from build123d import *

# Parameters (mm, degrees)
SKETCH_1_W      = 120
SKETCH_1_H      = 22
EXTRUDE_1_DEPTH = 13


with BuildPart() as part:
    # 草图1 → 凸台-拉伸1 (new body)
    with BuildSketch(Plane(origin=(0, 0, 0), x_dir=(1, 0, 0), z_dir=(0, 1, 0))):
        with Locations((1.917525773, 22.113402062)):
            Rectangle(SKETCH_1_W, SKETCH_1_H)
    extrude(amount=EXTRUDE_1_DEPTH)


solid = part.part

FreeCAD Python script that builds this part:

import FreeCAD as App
import Part
import Sketcher

V = App.Vector
Q = App.Units.Quantity

doc = App.newDocument("Part")
body = doc.addObject("PartDesign::Body", "Body")

sketch1 = body.newObject("Sketcher::SketchObject", "Sketch")
sketch1.AttachmentSupport = (doc.getObject("XZ_Plane"), [""])
sketch1.MapMode = "FlatFace"
sketch1.addGeometry([
    Part.LineSegment(V(-58.082474, -33.113402, 0), V(-58.082474, -11.113402, 0)),
    Part.LineSegment(V(-58.082474, -11.113402, 0), V(61.917526, -11.113402, 0)),
    Part.LineSegment(V(61.917526, -11.113402, 0), V(61.917526, -33.113402, 0)),
    Part.LineSegment(V(61.917526, -33.113402, 0), V(-58.082474, -33.113402, 0)),
], False)
sketch1.addConstraint([
    Sketcher.Constraint("Coincident", 0, 2, 1, 1),
    Sketcher.Constraint("Coincident", 1, 2, 2, 1),
    Sketcher.Constraint("Coincident", 2, 2, 3, 1),
    Sketcher.Constraint("Coincident", 3, 2, 0, 1),
    Sketcher.Constraint("Vertical", 0),
    Sketcher.Constraint("Horizontal", 1),
    Sketcher.Constraint("Vertical", 2),
    Sketcher.Constraint("Horizontal", 3),
    Sketcher.Constraint("DistanceX", 1, 1, 1, 2, Q("120 mm")),
    Sketcher.Constraint("DistanceY", 0, 1, 0, 2, Q("22 mm")),
    Sketcher.Constraint("DistanceX", 0, 2, -1, 1, Q("58.082474 mm")),
    Sketcher.Constraint("DistanceY", 0, 2, -1, 1, Q("11.113402 mm")),
])
pad1 = body.newObject("PartDesign::Pad", "Pad")
pad1.Profile = sketch1
pad1.Length = 13
pad1.Reversed = True

doc.recompute()
